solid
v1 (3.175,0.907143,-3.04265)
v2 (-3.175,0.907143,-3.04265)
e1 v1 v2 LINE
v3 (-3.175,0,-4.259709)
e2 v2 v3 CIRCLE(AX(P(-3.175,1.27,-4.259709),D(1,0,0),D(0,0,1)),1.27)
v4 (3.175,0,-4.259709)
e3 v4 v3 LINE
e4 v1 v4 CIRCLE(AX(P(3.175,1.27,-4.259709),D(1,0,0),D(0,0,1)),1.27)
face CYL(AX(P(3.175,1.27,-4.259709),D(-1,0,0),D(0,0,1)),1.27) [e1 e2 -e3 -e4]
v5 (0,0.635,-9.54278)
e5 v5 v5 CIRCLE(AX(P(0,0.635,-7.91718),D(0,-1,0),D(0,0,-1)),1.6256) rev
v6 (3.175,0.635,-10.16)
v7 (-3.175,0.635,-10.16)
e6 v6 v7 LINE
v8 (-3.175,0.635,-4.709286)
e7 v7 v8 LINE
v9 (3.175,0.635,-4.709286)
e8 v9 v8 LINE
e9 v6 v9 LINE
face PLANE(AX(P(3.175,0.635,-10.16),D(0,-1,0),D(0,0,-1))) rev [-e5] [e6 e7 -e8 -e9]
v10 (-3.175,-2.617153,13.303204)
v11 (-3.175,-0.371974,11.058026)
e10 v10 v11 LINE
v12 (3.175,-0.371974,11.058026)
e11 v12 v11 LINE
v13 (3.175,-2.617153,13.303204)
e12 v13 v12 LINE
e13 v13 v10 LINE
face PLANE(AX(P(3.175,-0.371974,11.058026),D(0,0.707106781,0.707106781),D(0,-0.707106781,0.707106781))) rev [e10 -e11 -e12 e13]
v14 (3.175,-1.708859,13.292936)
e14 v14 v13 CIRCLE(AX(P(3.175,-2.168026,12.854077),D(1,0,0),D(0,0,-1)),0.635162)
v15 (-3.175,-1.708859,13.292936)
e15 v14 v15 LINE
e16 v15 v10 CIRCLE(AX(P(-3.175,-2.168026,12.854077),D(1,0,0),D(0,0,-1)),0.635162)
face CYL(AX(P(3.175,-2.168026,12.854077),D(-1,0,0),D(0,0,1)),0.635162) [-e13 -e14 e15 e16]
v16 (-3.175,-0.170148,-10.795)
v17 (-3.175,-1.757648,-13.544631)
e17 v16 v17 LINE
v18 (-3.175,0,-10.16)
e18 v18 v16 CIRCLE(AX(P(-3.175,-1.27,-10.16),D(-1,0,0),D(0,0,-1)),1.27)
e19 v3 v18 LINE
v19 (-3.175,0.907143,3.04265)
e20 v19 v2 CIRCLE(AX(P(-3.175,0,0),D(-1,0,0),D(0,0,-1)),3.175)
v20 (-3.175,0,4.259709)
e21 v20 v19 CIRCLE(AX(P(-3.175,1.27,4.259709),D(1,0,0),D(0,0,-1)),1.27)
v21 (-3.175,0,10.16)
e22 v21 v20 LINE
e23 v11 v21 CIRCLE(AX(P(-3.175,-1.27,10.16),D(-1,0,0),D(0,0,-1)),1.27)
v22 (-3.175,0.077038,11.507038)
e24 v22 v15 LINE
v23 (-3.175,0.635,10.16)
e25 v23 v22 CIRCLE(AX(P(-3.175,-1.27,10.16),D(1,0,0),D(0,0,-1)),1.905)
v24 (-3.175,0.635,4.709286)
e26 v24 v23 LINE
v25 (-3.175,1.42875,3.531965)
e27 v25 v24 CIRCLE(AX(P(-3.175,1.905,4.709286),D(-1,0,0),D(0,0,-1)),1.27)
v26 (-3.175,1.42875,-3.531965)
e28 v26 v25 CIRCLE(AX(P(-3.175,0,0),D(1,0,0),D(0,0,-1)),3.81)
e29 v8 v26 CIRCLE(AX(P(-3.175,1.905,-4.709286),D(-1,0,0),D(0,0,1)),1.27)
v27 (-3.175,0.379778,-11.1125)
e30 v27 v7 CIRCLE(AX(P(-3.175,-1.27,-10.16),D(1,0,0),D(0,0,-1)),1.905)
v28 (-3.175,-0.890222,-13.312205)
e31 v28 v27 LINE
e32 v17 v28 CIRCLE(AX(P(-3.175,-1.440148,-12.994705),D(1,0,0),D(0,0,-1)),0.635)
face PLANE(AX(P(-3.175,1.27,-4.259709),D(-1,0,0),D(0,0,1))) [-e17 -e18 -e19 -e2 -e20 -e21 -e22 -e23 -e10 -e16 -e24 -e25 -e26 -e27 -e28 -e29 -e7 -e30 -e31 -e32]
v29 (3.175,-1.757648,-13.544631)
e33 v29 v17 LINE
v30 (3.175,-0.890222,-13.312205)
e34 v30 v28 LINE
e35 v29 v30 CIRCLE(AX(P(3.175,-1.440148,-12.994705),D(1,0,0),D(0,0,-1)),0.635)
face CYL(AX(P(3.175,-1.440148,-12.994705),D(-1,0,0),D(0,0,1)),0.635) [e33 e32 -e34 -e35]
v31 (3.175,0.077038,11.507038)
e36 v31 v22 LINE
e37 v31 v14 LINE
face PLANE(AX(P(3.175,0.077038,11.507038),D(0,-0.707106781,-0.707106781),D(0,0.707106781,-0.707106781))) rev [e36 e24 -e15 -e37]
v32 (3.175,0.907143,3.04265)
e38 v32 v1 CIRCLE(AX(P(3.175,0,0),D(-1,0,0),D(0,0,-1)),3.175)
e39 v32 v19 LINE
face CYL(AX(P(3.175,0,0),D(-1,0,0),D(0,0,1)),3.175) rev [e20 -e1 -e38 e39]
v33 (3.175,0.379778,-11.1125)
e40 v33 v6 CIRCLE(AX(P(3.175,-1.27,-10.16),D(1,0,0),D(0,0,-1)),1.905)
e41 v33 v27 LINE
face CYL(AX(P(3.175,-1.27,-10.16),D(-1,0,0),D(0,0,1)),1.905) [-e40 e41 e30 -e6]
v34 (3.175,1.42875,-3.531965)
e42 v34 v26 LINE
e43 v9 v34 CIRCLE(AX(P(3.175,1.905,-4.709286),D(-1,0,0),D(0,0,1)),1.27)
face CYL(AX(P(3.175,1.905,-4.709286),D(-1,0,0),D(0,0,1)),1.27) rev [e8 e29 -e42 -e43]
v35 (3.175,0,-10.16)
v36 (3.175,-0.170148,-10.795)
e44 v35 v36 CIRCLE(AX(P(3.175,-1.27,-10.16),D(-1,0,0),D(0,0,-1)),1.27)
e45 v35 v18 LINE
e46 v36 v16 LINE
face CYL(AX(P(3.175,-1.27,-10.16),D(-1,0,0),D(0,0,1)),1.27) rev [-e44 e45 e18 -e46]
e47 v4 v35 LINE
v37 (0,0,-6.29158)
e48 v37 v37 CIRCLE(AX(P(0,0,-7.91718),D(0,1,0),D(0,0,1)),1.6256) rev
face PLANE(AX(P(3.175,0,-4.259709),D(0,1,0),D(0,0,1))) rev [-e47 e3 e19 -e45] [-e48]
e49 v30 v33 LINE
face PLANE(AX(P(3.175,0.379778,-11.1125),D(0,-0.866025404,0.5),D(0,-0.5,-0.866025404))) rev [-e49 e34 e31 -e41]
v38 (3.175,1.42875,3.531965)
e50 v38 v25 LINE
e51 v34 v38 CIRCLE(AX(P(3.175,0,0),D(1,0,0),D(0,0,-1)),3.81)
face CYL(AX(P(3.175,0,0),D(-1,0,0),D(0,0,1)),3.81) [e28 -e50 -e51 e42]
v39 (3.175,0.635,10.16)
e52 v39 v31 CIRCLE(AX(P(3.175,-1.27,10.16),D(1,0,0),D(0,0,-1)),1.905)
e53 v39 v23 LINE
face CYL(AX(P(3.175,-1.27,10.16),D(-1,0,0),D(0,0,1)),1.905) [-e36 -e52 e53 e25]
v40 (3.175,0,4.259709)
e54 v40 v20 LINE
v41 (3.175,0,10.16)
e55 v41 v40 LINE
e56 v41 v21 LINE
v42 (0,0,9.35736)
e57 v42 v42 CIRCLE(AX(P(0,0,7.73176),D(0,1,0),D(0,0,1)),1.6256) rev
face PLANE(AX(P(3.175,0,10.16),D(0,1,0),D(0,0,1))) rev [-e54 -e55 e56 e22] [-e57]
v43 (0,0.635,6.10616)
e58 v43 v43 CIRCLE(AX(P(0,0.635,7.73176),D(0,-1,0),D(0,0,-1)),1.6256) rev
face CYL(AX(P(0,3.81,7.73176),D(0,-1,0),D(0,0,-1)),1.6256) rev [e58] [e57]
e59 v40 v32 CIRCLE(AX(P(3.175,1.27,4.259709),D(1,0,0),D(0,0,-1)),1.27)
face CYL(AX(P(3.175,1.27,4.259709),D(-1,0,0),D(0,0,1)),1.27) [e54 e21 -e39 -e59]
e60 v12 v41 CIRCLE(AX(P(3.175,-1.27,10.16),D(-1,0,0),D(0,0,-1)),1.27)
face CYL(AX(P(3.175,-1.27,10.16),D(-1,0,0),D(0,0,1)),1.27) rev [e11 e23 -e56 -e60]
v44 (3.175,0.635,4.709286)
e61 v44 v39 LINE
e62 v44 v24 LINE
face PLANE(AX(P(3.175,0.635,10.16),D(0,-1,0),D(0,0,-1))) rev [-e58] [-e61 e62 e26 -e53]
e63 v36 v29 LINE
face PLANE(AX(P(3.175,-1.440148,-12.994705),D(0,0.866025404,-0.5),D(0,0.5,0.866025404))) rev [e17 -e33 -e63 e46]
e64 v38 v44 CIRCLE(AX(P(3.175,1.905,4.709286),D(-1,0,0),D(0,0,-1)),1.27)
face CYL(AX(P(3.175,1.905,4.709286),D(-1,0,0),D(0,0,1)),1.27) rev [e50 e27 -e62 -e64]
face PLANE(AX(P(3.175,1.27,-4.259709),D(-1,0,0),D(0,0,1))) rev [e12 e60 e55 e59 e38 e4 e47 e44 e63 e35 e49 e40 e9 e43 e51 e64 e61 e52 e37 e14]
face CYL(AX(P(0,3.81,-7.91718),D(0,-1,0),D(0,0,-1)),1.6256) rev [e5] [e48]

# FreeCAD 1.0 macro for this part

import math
import FreeCAD as App
import Part
import Sketcher
from FreeCAD import Vector
Q = App.Units.Quantity

doc = App.newDocument("Part")
body = doc.addObject("PartDesign::Body", "Body")

sketch1 = body.newObject("Sketcher::SketchObject", "Sketch")
sketch1.AttachmentSupport = (doc.getObject("YZ_Plane"), [""])
sketch1.MapMode = "FlatFace"
sketch1.addGeometry(Part.LineSegment(Vector(0, 10.16, 0), Vector(0, 4.259709, 0)), False)
sketch1.addGeometry(Part.ArcOfCircle(Part.Circle(Vector(1.27, 4.259709, 0), Vector(0, 0, 1), 1.27), math.radians(180), math.radians(253.39845)), False)
sketch1.addGeometry(Part.ArcOfCircle(Part.Circle(Vector(0, 0, 0), Vector(0, 0, 1), 3.175), math.radians(-73.39845), math.radians(73.39845)), False)
sketch1.addGeometry(Part.ArcOfCircle(Part.Circle(Vector(1.27, -4.259709, 0), Vector(0, 0, 1), 1.27), math.radians(106.60155), math.radians(180)), False)
sketch1.addGeometry(Part.LineSegment(Vector(0, -4.259709, 0), Vector(0, -10.16, 0)), False)
sketch1.addGeometry(Part.ArcOfCircle(Part.Circle(Vector(-1.27, -10.16, 0), Vector(0, 0, 1), 1.27), math.radians(-30), math.radians(0)), False)
sketch1.addGeometry(Part.LineSegment(Vector(-0.170148, -10.795, 0), Vector(-1.440148, -12.994705, 0)), False)
sketch1.addGeometry(Part.LineSegment(Vector(-1.440148, -12.994705, 0), Vector(-1.757648, -13.544631, 0)), False)
sketch1.addGeometry(Part.ArcOfCircle(Part.Circle(Vector(-1.440148, -12.994705, 0), Vector(0, 0, 1), 0.635), math.radians(-120), math.radians(-30)), False)
sketch1.addGeometry(Part.LineSegment(Vector(-0.890222, -13.312205, 0), Vector(0.379778, -11.1125, 0)), False)
sketch1.addGeometry(Part.ArcOfCircle(Part.Circle(Vector(-1.27, -10.16, 0), Vector(0, 0, 1), 1.905), math.radians(-30), math.radians(0)), False)
sketch1.addGeometry(Part.LineSegment(Vector(0.635, -10.16, 0), Vector(0.635, -4.709286, 0)), False)
sketch1.addGeometry(Part.ArcOfCircle(Part.Circle(Vector(1.905, -4.709286, 0), Vector(0, 0, 1), 1.27), math.radians(112.024313), math.radians(180)), False)
sketch1.addGeometry(Part.ArcOfCircle(Part.Circle(Vector(0, 0, 0), Vector(0, 0, 1), 3.81), math.radians(-67.975687), math.radians(67.975687)), False)
sketch1.addGeometry(Part.ArcOfCircle(Part.Circle(Vector(1.905, 4.709286, 0), Vector(0, 0, 1), 1.27), math.radians(180), math.radians(247.975687)), False)
sketch1.addGeometry(Part.LineSegment(Vector(0.635, 4.709286, 0), Vector(0.635, 10.16, 0)), False)
sketch1.addGeometry(Part.ArcOfCircle(Part.Circle(Vector(-1.27, 10.16, 0), Vector(0, 0, 1), 1.905), math.radians(0), math.radians(45)), False)
sketch1.addGeometry(Part.LineSegment(Vector(0.077038, 11.507038, 0), Vector(-1.708859, 13.292936, 0)), False)
sketch1.addGeometry(Part.ArcOfCircle(Part.Circle(Vector(-2.168026, 12.854077, 0), Vector(0, 0, 1), 0.635162), math.radians(43.704614), math.radians(135)), False)
sketch1.addGeometry(Part.LineSegment(Vector(-2.617153, 13.303204, 0), Vector(-2.168026, 12.854077, 0)), False)
sketch1.addGeometry(Part.LineSegment(Vector(-2.168026, 12.854077, 0), Vector(-0.371974, 11.058026, 0)), False)
sketch1.addGeometry(Part.ArcOfCircle(Part.Circle(Vector(-1.27, 10.16, 0), Vector(0, 0, 1), 1.27), math.radians(0), math.radians(45)), False)
sketch1.addConstraint(Sketcher.Constraint("Tangent", 0, 2, 1, 1))
sketch1.addConstraint(Sketcher.Constraint("Tangent", 1, 2, 2, 2))
sketch1.addConstraint(Sketcher.Constraint("Tangent", 2, 1, 3, 1))
sketch1.addConstraint(Sketcher.Constraint("Tangent", 3, 2, 4, 1))
sketch1.addConstraint(Sketcher.Constraint("Tangent", 4, 2, 5, 2))
sketch1.addConstraint(Sketcher.Constraint("Tangent", 5, 1, 6, 1))
sketch1.addConstraint(Sketcher.Constraint("Coincident", 6, 2, 7, 1))
sketch1.addConstraint(Sketcher.Constraint("Coincident", 7, 2, 8, 1))
sketch1.addConstraint(Sketcher.Constraint("Tangent", 8, 2, 9, 1))
sketch1.addConstraint(Sketcher.Constraint("Tangent", 9, 2, 10, 1))
sketch1.addConstraint(Sketcher.Constraint("Tangent", 10, 2, 11, 1))
sketch1.addConstraint(Sketcher.Constraint("Tangent", 11, 2, 12, 2))
sketch1.addConstraint(Sketcher.Constraint("Tangent", 12, 1, 13, 1))
sketch1.addConstraint(Sketcher.Constraint("Tangent", 13, 2, 14, 2))
sketch1.addConstraint(Sketcher.Constraint("Tangent", 14, 1, 15, 1))
sketch1.addConstraint(Sketcher.Constraint("Tangent", 15, 2, 16, 1))
sketch1.addConstraint(Sketcher.Constraint("Tangent", 16, 2, 17, 1))
sketch1.addConstraint(Sketcher.Constraint("Coincident", 17, 2, 18, 1))
sketch1.addConstraint(Sketcher.Constraint("Coincident", 18, 2, 19, 1))
sketch1.addConstraint(Sketcher.Constraint("Coincident", 19, 2, 20, 1))
sketch1.addConstraint(Sketcher.Constraint("Tangent", 20, 2, 21, 2))
sketch1.addConstraint(Sketcher.Constraint("Tangent", 21, 1, 0, 1))
sketch1.addConstraint(Sketcher.Constraint("Vertical", 0))
sketch1.addConstraint(Sketcher.Constraint("Vertical", 4))
sketch1.addConstraint(Sketcher.Constraint("Vertical", 11))
sketch1.addConstraint(Sketcher.Constraint("Vertical", 15))
sketch1.addConstraint(Sketcher.Constraint("Coincident", 2, 3, -1, 1))
sketch1.addConstraint(Sketcher.Constraint("Coincident", 13, 3, -1, 1))
sketch1.addConstraint(Sketcher.Constraint("Coincident", 10, 3, 5, 3))
sketch1.addConstraint(Sketcher.Constraint("Coincident", 21, 3, 16, 3))
sketch1.addConstraint(Sketcher.Constraint("Coincident", 6, 2, 8, 3))
sketch1.addConstraint(Sketcher.Constraint("Coincident", 19, 2, 18, 3))
sketch1.addConstraint(Sketcher.Constraint("Equal", 1, 3))
sketch1.addConstraint(Sketcher.Constraint("Equal", 3, 5))
sketch1.addConstraint(Sketcher.Constraint("Equal", 5, 12))
sketch1.addConstraint(Sketcher.Constraint("Equal", 12, 14))
sketch1.addConstraint(Sketcher.Constraint("Equal", 10, 16))
sketch1.addConstraint(Sketcher.Constraint("Equal", 14, 21))
sketch1.addConstraint(Sketcher.Constraint("Symmetric", 0, 2, 3, 2, -1, 1))
sketch1.addConstraint(Sketcher.Constraint("Parallel", 6, 7))
sketch1.addConstraint(Sketcher.Constraint("Parallel", 7, 9))
sketch1.addConstraint(Sketcher.Constraint("Parallel", 17, 19))
sketch1.addConstraint(Sketcher.Constraint("Parallel", 19, 20))
sketch1.addConstraint(Sketcher.Constraint("Equal", 0, 4))
sketch1.addConstraint(Sketcher.Constraint("Equal", 9, 20))
sketch1.addConstraint(Sketcher.Constraint("Radius", 1, Q("0.05 in")))
sketch1.addConstraint(Sketcher.Constraint("Radius", 13, Q("0.15 in")))
sketch1.addConstraint(Sketcher.Constraint("Angle", 6, Q("-120 deg")))
sketch1.addConstraint(Sketcher.Constraint("Angle", 17, Q("135 deg")))
sketch1.addConstraint(Sketcher.Constraint("Radius", 2, Q("0.125 in")))
sketch1.addConstraint(Sketcher.Constraint("Radius", 8, Q("0.025 in")))
sketch1.addConstraint(Sketcher.Constraint("Distance", 6, Q("0.1 in")))
sketch1.addConstraint(Sketcher.Constraint("DistanceY", 5, 3, -1, 1, Q("0.4 in")))
sketch1.addConstraint(Sketcher.Constraint("Radius", 18, Q("0.635162 mm")))
pad1 = body.newObject("PartDesign::Pad", "Pad")
pad1.Profile = sketch1
pad1.Length = Q("0.25 in")
pad1.Midplane = True

sketch2 = body.newObject("Sketcher::SketchObject", "Sketch001")
sketch2.AttachmentSupport = (doc.getObject("XZ_Plane"), [""])
sketch2.MapMode = "FlatFace"
sketch2.AttachmentOffset = App.Placement(Vector(0, 0, -0.025 * 25.4), App.Rotation())
sketch2.addGeometry(Part.Circle(Vector(0, 7.73176, 0), Vector(0, 0, 1), 1.6256), False)
sketch2.addConstraint(Sketcher.Constraint("PointOnObject", 0, 3, -2))
sketch2.addConstraint(Sketcher.Constraint("Diameter", 0, Q("0.128 in")))
sketch2.addConstraint(Sketcher.Constraint("DistanceY", -1, 1, 0, 3, Q("0.3044 in")))
pocket1 = body.newObject("PartDesign::Pocket", "Pocket")
pocket1.Profile = sketch2
pocket1.Type = "UpToFirst"
pocket1.Reversed = True

sketch3 = body.newObject("Sketcher::SketchObject", "Sketch002")
sketch3.AttachmentSupport = (doc.getObject("XZ_Plane"), [""])
sketch3.MapMode = "FlatFace"
sketch3.AttachmentOffset = App.Placement(Vector(0, 0, -0.025 * 25.4), App.Rotation())
sketch3.addGeometry(Part.Circle(Vector(0, -7.91718, 0), Vector(0, 0, 1), 1.6256), False)
sketch3.addConstraint(Sketcher.Constraint("PointOnObject", 0, 3, -2))
sketch3.addConstraint(Sketcher.Constraint("Diameter", 0, Q("0.128 in")))
sketch3.addConstraint(Sketcher.Constraint("DistanceY", 0, 3, -1, 1, Q("0.3117 in")))
pocket2 = body.newObject("PartDesign::Pocket", "Pocket001")
pocket2.Profile = sketch3
pocket2.Type = "UpToFirst"
pocket2.Reversed = True

sketch4 = body.newObject("Sketcher::SketchObject", "Sketch003")
sketch4.AttachmentSupport = (doc.getObject("XZ_Plane"), [""])
sketch4.MapMode = "FlatFace"
sketch4.AttachmentOffset = App.Placement(Vector(0, 0, -0.025 * 25.4), App.Rotation())
sketch4.addGeometry(Part.Circle(Vector(0, 7.73176, 0), Vector(0, 0, 1), 1.6256), False)
sketch4.addGeometry(Part.Circle(Vector(0, -7.91718, 0), Vector(0, 0, 1), 1.6256), False)
sketch4.addConstraint(Sketcher.Constraint("Equal", 0, 1))
sketch4.addConstraint(Sketcher.Constraint("PointOnObject", 0, 3, -2))
sketch4.addConstraint(Sketcher.Constraint("PointOnObject", 1, 3, -2))
sketch4.addConstraint(Sketcher.Constraint("Diameter", 0, Q("0.128 in")))
sketch4.addConstraint(Sketcher.Constraint("DistanceY", -1, 1, 0, 3, Q("0.3044 in")))
sketch4.addConstraint(Sketcher.Constraint("DistanceY", 1, 3, -1, 1, Q("0.3117 in")))
pocket3 = body.newObject("PartDesign::Pocket", "Pocket002")
pocket3.Profile = sketch4
pocket3.Length = 4.175

doc.recompute()
